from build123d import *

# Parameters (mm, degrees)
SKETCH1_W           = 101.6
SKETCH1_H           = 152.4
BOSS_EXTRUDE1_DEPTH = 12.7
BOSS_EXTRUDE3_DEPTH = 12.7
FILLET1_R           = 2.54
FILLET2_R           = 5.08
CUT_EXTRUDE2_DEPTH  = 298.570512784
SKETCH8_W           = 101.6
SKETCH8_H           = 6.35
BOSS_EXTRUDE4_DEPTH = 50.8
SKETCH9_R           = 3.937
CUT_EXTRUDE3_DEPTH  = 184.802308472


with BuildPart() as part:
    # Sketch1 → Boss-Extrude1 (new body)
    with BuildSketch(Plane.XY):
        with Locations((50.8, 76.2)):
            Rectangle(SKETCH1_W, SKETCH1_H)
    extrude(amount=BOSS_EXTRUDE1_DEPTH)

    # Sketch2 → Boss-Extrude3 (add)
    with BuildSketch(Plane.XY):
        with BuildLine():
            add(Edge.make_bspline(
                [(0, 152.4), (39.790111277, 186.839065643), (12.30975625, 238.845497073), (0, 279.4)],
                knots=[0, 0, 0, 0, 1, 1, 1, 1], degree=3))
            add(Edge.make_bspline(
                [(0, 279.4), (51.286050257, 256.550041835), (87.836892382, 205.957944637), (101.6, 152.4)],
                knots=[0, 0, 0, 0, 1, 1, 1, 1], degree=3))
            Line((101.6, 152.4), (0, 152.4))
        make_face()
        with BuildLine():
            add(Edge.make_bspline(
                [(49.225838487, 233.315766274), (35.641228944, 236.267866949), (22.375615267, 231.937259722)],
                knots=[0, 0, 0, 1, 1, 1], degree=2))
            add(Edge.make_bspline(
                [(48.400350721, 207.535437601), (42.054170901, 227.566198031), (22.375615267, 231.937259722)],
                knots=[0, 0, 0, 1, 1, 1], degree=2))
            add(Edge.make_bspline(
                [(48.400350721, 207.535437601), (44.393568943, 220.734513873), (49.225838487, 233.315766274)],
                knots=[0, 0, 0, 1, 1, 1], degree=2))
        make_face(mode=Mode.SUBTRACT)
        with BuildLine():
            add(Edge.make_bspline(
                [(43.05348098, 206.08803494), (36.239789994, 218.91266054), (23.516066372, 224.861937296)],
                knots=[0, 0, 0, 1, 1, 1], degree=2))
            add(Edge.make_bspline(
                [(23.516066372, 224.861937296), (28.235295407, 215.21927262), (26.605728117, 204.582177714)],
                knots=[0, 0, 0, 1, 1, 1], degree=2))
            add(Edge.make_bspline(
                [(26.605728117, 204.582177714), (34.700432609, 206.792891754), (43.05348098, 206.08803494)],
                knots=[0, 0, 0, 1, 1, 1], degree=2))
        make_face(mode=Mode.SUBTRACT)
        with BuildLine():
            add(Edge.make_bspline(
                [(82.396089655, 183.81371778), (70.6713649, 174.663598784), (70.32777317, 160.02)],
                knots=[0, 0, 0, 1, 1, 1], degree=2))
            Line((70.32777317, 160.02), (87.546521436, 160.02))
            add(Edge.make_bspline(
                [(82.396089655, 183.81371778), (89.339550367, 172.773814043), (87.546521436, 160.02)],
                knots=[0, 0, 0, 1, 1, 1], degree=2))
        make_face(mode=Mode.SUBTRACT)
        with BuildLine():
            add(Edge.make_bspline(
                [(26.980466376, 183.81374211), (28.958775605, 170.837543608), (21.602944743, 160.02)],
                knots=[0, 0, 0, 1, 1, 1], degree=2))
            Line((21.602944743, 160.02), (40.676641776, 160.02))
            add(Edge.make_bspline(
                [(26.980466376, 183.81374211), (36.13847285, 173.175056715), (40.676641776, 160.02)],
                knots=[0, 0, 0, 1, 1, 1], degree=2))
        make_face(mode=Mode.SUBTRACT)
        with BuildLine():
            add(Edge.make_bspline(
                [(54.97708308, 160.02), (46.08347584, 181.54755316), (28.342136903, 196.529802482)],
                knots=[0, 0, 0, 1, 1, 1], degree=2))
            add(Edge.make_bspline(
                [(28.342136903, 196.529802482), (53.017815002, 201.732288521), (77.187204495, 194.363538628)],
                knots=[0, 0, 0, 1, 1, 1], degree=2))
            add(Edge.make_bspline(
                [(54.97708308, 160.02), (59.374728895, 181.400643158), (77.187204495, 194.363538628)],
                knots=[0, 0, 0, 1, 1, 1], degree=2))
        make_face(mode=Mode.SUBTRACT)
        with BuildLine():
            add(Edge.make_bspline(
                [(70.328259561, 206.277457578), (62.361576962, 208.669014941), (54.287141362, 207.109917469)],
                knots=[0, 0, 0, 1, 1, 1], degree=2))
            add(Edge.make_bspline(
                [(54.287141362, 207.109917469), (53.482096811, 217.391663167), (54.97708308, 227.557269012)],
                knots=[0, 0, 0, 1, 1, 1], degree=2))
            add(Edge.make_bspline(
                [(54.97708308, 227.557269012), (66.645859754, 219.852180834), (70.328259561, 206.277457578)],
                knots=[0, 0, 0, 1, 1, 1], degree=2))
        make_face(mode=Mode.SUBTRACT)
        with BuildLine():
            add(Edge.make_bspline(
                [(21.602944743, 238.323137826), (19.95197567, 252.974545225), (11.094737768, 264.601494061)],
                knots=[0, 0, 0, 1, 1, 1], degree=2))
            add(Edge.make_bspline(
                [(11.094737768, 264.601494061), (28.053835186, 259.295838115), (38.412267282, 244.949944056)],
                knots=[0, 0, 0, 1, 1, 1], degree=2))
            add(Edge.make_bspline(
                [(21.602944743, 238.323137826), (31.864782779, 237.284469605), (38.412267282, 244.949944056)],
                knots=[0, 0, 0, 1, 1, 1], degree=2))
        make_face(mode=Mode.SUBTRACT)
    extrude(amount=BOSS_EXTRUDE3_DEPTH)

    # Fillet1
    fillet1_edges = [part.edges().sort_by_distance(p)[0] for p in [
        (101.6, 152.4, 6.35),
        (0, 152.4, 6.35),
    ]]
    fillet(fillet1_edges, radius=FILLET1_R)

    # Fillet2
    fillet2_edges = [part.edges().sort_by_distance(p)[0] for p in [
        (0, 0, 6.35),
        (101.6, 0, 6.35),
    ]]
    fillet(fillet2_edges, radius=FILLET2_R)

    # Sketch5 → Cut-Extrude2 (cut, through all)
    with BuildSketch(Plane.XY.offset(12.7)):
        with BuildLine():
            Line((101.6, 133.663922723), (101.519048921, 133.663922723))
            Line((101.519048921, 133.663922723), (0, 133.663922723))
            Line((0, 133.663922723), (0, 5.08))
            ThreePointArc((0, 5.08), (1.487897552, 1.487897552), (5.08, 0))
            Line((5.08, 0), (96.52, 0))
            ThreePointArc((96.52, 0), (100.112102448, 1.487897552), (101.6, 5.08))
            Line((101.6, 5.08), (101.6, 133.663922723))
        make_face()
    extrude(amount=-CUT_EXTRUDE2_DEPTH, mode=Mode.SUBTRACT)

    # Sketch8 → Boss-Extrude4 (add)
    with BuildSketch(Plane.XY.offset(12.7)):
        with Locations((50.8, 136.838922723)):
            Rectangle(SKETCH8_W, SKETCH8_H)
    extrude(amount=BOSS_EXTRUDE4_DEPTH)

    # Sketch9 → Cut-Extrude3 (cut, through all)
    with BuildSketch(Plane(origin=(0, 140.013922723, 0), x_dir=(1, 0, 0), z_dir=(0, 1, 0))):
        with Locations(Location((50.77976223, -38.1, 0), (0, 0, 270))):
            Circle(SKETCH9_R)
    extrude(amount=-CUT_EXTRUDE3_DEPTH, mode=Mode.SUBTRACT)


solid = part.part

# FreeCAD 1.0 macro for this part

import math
import FreeCAD as App
import Part
import Sketcher
Q = App.Units.Quantity


def edges_at(feature, points):
    """Names of the edges that pass closest to the given points."""
    edges = feature.Shape.Edges
    near = lambda p: min(range(len(edges)), key=lambda i: edges[i].distToShape(Part.Vertex(*p))[0])
    return sorted({f"Edge{near(p) + 1}" for p in points})


def add_polygon(sketch, points):
    """Adds a closed chain of lines whose ends are joined by coincident constraints."""
    first, n = sketch.GeometryCount, len(points)
    for a, b in zip(points, points[1:] + points[:1]):
        sketch.addGeometry(Part.LineSegment(App.Vector(*a, 0), App.Vector(*b, 0)), False)
    for i in range(n):
        sketch.addConstraint(Sketcher.Constraint("Coincident", first + i, 2, first + (i + 1) % n, 1))

doc = App.newDocument("Part")
body = doc.addObject("PartDesign::Body", "Body")

# Sketch on XY plane
sketch1 = body.newObject("Sketcher::SketchObject", "Sketch")
sketch1.AttachmentSupport = (doc.getObject("XY_Plane"), [""])
sketch1.MapMode = "FlatFace"
add_polygon(sketch1, [(0, 152), (0, 0), (102, 0), (102, 152)])  # lines 0-3
sketch1.addConstraint([
    Sketcher.Constraint("Vertical", 0),
    Sketcher.Constraint("Horizontal", 1),
    Sketcher.Constraint("Vertical", 2),
    Sketcher.Constraint("Horizontal", 3),
    Sketcher.Constraint("Coincident", 0, 2, -1, 1),
    Sketcher.Constraint("DistanceX", 1, 1, 1, 2, Q("4 in")),
    Sketcher.Constraint("DistanceY", 0, 2, 0, 1, Q("6 in")),
])
pad1 = body.newObject("PartDesign::Pad", "Pad")
pad1.Profile = sketch1
pad1.Length = Q("0.5 in")

# Sketch on XY plane
sketch2 = body.newObject("Sketcher::SketchObject", "Sketch001")
sketch2.AttachmentSupport = (doc.getObject("XY_Plane"), [""])
sketch2.MapMode = "FlatFace"
sketch2.addGeometry([
    Part.BSplineCurve([App.Vector(0, 152.4, 0), App.Vector(39.790111, 186.839066, 0), App.Vector(12.309756, 238.845497, 0), App.Vector(0, 279.4, 0)], [4, 4], [0, 1], False, 3, [1, 1, 1, 1], False),  # 0
    Part.LineSegment(App.Vector(0, 152.4, 0), App.Vector(101.6, 152.4, 0)),  # 1
    Part.BSplineCurve([App.Vector(0, 279.4, 0), App.Vector(51.28605, 256.550042, 0), App.Vector(87.836892, 205.957945, 0), App.Vector(101.6, 152.4, 0)], [4, 4], [0, 1], False, 3, [1, 1, 1, 1], False),  # 2
    Part.BSplineCurve([App.Vector(82.39609, 183.813718, 0), App.Vector(89.33955, 172.773814, 0), App.Vector(87.546521, 160.02, 0)], [3, 3], [0, 1], False, 2, [1, 1, 1], False),  # 3
    Part.LineSegment(App.Vector(87.546521, 160.02, 0), App.Vector(70.327773, 160.02, 0)),  # 4
    Part.BSplineCurve([App.Vector(82.39609, 183.813718, 0), App.Vector(70.671365, 174.663599, 0), App.Vector(70.327773, 160.02, 0)], [3, 3], [0, 1], False, 2, [1, 1, 1], False),  # 5
    Part.BSplineCurve([App.Vector(54.977083, 160.02, 0), App.Vector(46.083476, 181.547553, 0), App.Vector(28.342137, 196.529802, 0)], [3, 3], [0, 1], False, 2, [1, 1, 1], False),  # 6
    Part.BSplineCurve([App.Vector(28.342137, 196.529802, 0), App.Vector(53.017815, 201.732289, 0), App.Vector(77.187204, 194.363539, 0)], [3, 3], [0, 1], False, 2, [1, 1, 1], False),  # 7
    Part.BSplineCurve([App.Vector(54.977083, 160.02, 0), App.Vector(59.374729, 181.400643, 0), App.Vector(77.187204, 194.363539, 0)], [3, 3], [0, 1], False, 2, [1, 1, 1], False),  # 8
    Part.BSplineCurve([App.Vector(26.980466, 183.813742, 0), App.Vector(36.138473, 173.175057, 0), App.Vector(40.676642, 160.02, 0)], [3, 3], [0, 1], False, 2, [1, 1, 1], False),  # 9
    Part.LineSegment(App.Vector(40.676642, 160.02, 0), App.Vector(21.602945, 160.02, 0)),  # 10
    Part.BSplineCurve([App.Vector(26.980466, 183.813742, 0), App.Vector(28.958776, 170.837544, 0), App.Vector(21.602945, 160.02, 0)], [3, 3], [0, 1], False, 2, [1, 1, 1], False),  # 11
    Part.BSplineCurve([App.Vector(70.32826, 206.277458, 0), App.Vector(62.361577, 208.669015, 0), App.Vector(54.287141, 207.109917, 0)], [3, 3], [0, 1], False, 2, [1, 1, 1], False),  # 12
    Part.BSplineCurve([App.Vector(54.287141, 207.109917, 0), App.Vector(53.482097, 217.391663, 0), App.Vector(54.977083, 227.557269, 0)], [3, 3], [0, 1], False, 2, [1, 1, 1], False),  # 13
    Part.BSplineCurve([App.Vector(54.977083, 227.557269, 0), App.Vector(66.64586, 219.852181, 0), App.Vector(70.32826, 206.277458, 0)], [3, 3], [0, 1], False, 2, [1, 1, 1], False),  # 14
    Part.BSplineCurve([App.Vector(26.605728, 204.582178, 0), App.Vector(34.700433, 206.792892, 0), App.Vector(43.053481, 206.088035, 0)], [3, 3], [0, 1], False, 2, [1, 1, 1], False),  # 15
    Part.BSplineCurve([App.Vector(23.516066, 224.861937, 0), App.Vector(28.235295, 215.219273, 0), App.Vector(26.605728, 204.582178, 0)], [3, 3], [0, 1], False, 2, [1, 1, 1], False),  # 16
    Part.BSplineCurve([App.Vector(43.053481, 206.088035, 0), App.Vector(36.23979, 218.912661, 0), App.Vector(23.516066, 224.861937, 0)], [3, 3], [0, 1], False, 2, [1, 1, 1], False),  # 17
    Part.BSplineCurve([App.Vector(48.400351, 207.535438, 0), App.Vector(44.393569, 220.734514, 0), App.Vector(49.225838, 233.315766, 0)], [3, 3], [0, 1], False, 2, [1, 1, 1], False),  # 18
    Part.BSplineCurve([App.Vector(48.400351, 207.535438, 0), App.Vector(42.054171, 227.566198, 0), App.Vector(22.375615, 231.93726, 0)], [3, 3], [0, 1], False, 2, [1, 1, 1], False),  # 19
    Part.BSplineCurve([App.Vector(49.225838, 233.315766, 0), App.Vector(35.641229, 236.267867, 0), App.Vector(22.375615, 231.93726, 0)], [3, 3], [0, 1], False, 2, [1, 1, 1], False),  # 20
    Part.BSplineCurve([App.Vector(21.602945, 238.323138, 0), App.Vector(19.951976, 252.974545, 0), App.Vector(11.094738, 264.601494, 0)], [3, 3], [0, 1], False, 2, [1, 1, 1], False),  # 21
    Part.BSplineCurve([App.Vector(11.094738, 264.601494, 0), App.Vector(28.053835, 259.295838, 0), App.Vector(38.412267, 244.949944, 0)], [3, 3], [0, 1], False, 2, [1, 1, 1], False),  # 22
    Part.BSplineCurve([App.Vector(21.602945, 238.323138, 0), App.Vector(31.864783, 237.28447, 0), App.Vector(38.412267, 244.949944, 0)], [3, 3], [0, 1], False, 2, [1, 1, 1], False),  # 23
], False)
sketch2.addConstraint([
    Sketcher.Constraint("Block", 0),
    Sketcher.Constraint("Block", 2),
    Sketcher.Constraint("Block", 3),
    Sketcher.Constraint("Block", 5),
    Sketcher.Constraint("Block", 6),
    Sketcher.Constraint("Block", 7),
    Sketcher.Constraint("Block", 8),
    Sketcher.Constraint("Block", 9),
    Sketcher.Constraint("Block", 11),
    Sketcher.Constraint("Block", 12),
    Sketcher.Constraint("Block", 13),
    Sketcher.Constraint("Block", 14),
    Sketcher.Constraint("Block", 15),
    Sketcher.Constraint("Block", 16),
    Sketcher.Constraint("Block", 17),
    Sketcher.Constraint("Block", 18),
    Sketcher.Constraint("Block", 19),
    Sketcher.Constraint("Block", 20),
    Sketcher.Constraint("Block", 21),
    Sketcher.Constraint("Block", 22),
    Sketcher.Constraint("Block", 23),
    Sketcher.Constraint("Coincident", 0, 1, 1, 1),
    Sketcher.Constraint("Coincident", 1, 2, 2, 2),
    Sketcher.Constraint("Coincident", 3, 2, 4, 1),
    Sketcher.Constraint("Coincident", 4, 2, 5, 2),
    Sketcher.Constraint("Coincident", 9, 2, 10, 1),
    Sketcher.Constraint("Coincident", 10, 2, 11, 2),
])
pad2 = body.newObject("PartDesign::Pad", "Pad001")
pad2.Profile = sketch2
pad2.Length = Q("0.5 in")
doc.recompute()

fillet = body.newObject("PartDesign::Fillet", "Fillet")
fillet.Base = (pad2, edges_at(pad2, [(101.6, 152.4, 6.35), (0, 152.4, 6.35)]))
fillet.Radius = Q("0.1 in")
doc.recompute()

fillet2 = body.newObject("PartDesign::Fillet", "Fillet001")
fillet2.Base = (fillet, edges_at(fillet, [(0, 0, 6.35), (101.6, 0, 6.35)]))
fillet2.Radius = Q("0.2 in")

# Sketch on XY plane
sketch3 = body.newObject("Sketcher::SketchObject", "Sketch002")
sketch3.AttachmentSupport = (doc.getObject("XY_Plane"), [""])
sketch3.MapMode = "FlatFace"
sketch3.AttachmentOffset = App.Placement(App.Vector(0, 0, 0.5 * 25.4), App.Rotation())
sketch3.addGeometry([
    Part.LineSegment(App.Vector(102, 134, 0), App.Vector(0, 134, 0)),  # 0
    Part.LineSegment(App.Vector(0, 134, 0), App.Vector(0, 5, 0)),  # 1
    Part.ArcOfCircle(Part.Circle(App.Vector(5, 5, 0), App.Vector(0, 0, 1), 5), math.radians(-180), math.radians(-90)),  # 2
    Part.LineSegment(App.Vector(5, 0, 0), App.Vector(97, 0, 0)),  # 3
    Part.ArcOfCircle(Part.Circle(App.Vector(97, 5, 0), App.Vector(0, 0, 1), 5), math.radians(-90), math.radians(0)),  # 4
    Part.LineSegment(App.Vector(102, 5, 0), App.Vector(102, 134, 0)),  # 5
], False)
sketch3.addConstraint([
    Sketcher.Constraint("Coincident", 0, 2, 1, 1),
    Sketcher.Constraint("Tangent", 1, 2, 2, 1),
    Sketcher.Constraint("Tangent", 2, 2, 3, 1),
    Sketcher.Constraint("Tangent", 3, 2, 4, 1),
    Sketcher.Constraint("Tangent", 4, 2, 5, 1),
    Sketcher.Constraint("Coincident", 5, 2, 0, 1),
    Sketcher.Constraint("Horizontal", 0),
    Sketcher.Constraint("Vertical", 1),
    Sketcher.Constraint("Horizontal", 3),
    Sketcher.Constraint("Vertical", 5),
    Sketcher.Constraint("Equal", 2, 4),
    Sketcher.Constraint("PointOnObject", 0, 2, -2),
    Sketcher.Constraint("PointOnObject", 2, 2, -1),
    Sketcher.Constraint("Radius", 2, Q("0.2 in")),
    Sketcher.Constraint("DistanceX", 0, 2, 0, 1, Q("4 in")),
    Sketcher.Constraint("DistanceY", 1, 2, 1, 1, 128.583923),
])
pocket1 = body.newObject("PartDesign::Pocket", "Pocket")
pocket1.Profile = sketch3
pocket1.Type = "ThroughAll"

# Sketch on XY plane
sketch4 = body.newObject("Sketcher::SketchObject", "Sketch003")
sketch4.AttachmentSupport = (doc.getObject("XY_Plane"), [""])
sketch4.MapMode = "FlatFace"
sketch4.AttachmentOffset = App.Placement(App.Vector(0, 0, 0.5 * 25.4), App.Rotation())
add_polygon(sketch4, [(0, 140), (0, 134), (102, 134), (102, 140)])  # lines 0-3
sketch4.addConstraint([
    Sketcher.Constraint("Vertical", 0),
    Sketcher.Constraint("Horizontal", 1),
    Sketcher.Constraint("Vertical", 2),
    Sketcher.Constraint("Horizontal", 3),
    Sketcher.Constraint("PointOnObject", 0, 2, -2),
    Sketcher.Constraint("DistanceX", 1, 1, 1, 2, Q("4 in")),
    Sketcher.Constraint("DistanceY", 0, 2, 0, 1, Q("0.25 in")),
    Sketcher.Constraint("DistanceY", -1, 1, 0, 2, 133.663923),
])
pad3 = body.newObject("PartDesign::Pad", "Pad002")
pad3.Profile = sketch4
pad3.Length = Q("2 in")

# Sketch on XZ plane
sketch5 = body.newObject("Sketcher::SketchObject", "Sketch004")
sketch5.AttachmentSupport = (doc.getObject("XZ_Plane"), [""])
sketch5.MapMode = "FlatFace"
sketch5.AttachmentOffset = App.Placement(App.Vector(0, 0, -140.013923), App.Rotation())
sketch5.addGeometry(Part.Circle(App.Vector(50.8, 38.1, 0), App.Vector(0, 0, 1), 3.9), False)
sketch5.addConstraint([
    Sketcher.Constraint("Diameter", 0, Q("0.31 in")),
    Sketcher.Constraint("DistanceY", -1, 1, 0, 3, Q("1.5 in")),
    Sketcher.Constraint("DistanceX", -1, 1, 0, 3, 50.779762),
])
pocket2 = body.newObject("PartDesign::Pocket", "Pocket001")
pocket2.Profile = sketch5
pocket2.Type = "ThroughAll"
pocket2.Reversed = True

doc.recompute()
